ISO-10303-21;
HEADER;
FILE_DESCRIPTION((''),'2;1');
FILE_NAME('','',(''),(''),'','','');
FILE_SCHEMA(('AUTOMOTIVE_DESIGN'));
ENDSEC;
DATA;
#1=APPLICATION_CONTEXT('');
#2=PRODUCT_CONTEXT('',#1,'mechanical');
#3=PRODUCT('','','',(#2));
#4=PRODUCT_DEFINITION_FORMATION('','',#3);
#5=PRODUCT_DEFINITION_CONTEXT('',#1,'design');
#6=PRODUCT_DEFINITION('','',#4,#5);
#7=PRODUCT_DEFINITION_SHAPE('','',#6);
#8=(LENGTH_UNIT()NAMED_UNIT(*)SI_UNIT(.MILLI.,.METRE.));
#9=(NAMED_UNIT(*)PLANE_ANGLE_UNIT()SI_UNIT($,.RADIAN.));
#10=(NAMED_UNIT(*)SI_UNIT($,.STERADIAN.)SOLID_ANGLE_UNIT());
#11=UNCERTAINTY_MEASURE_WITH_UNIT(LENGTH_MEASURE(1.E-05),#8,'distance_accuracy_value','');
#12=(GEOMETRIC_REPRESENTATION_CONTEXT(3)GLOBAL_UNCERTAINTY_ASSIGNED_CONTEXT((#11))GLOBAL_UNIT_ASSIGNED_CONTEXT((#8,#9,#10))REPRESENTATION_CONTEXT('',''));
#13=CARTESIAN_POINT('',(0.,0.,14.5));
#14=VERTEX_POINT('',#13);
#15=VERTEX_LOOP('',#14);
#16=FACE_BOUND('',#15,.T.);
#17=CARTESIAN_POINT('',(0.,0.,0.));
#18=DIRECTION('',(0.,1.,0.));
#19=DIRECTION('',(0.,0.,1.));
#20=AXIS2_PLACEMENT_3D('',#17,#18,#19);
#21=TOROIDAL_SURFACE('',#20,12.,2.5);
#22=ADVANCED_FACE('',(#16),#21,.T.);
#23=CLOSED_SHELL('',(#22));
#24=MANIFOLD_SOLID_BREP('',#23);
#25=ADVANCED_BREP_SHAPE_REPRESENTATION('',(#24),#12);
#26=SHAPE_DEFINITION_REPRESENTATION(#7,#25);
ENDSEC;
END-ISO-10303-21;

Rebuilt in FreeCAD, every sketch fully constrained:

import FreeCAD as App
import Part
import Sketcher
from FreeCAD import Vector
Q = App.Units.Quantity

doc = App.newDocument("Part")
body = doc.addObject("PartDesign::Body", "Body")

# Sketch on XY plane
sketch1 = body.newObject("Sketcher::SketchObject", "Sketch")
sketch1.AttachmentSupport = (doc.getObject("XY_Plane"), [""])
sketch1.MapMode = "FlatFace"
sketch1.addGeometry(Part.Circle(Vector(12, 0, 0), Vector(0, 0, 1), 2.5), False)
sketch1.addConstraint([
    Sketcher.Constraint("PointOnObject", 0, 3, -1),
    Sketcher.Constraint("Diameter", 0, Q("5 mm")),
    Sketcher.Constraint("DistanceX", -1, 1, 0, 3, Q("12 mm")),
])
revolution = body.newObject("PartDesign::Revolution", "Revolution")
revolution.Profile = sketch1
revolution.ReferenceAxis = (sketch1, ["V_Axis"])
revolution.Angle = 360

doc.recompute()
